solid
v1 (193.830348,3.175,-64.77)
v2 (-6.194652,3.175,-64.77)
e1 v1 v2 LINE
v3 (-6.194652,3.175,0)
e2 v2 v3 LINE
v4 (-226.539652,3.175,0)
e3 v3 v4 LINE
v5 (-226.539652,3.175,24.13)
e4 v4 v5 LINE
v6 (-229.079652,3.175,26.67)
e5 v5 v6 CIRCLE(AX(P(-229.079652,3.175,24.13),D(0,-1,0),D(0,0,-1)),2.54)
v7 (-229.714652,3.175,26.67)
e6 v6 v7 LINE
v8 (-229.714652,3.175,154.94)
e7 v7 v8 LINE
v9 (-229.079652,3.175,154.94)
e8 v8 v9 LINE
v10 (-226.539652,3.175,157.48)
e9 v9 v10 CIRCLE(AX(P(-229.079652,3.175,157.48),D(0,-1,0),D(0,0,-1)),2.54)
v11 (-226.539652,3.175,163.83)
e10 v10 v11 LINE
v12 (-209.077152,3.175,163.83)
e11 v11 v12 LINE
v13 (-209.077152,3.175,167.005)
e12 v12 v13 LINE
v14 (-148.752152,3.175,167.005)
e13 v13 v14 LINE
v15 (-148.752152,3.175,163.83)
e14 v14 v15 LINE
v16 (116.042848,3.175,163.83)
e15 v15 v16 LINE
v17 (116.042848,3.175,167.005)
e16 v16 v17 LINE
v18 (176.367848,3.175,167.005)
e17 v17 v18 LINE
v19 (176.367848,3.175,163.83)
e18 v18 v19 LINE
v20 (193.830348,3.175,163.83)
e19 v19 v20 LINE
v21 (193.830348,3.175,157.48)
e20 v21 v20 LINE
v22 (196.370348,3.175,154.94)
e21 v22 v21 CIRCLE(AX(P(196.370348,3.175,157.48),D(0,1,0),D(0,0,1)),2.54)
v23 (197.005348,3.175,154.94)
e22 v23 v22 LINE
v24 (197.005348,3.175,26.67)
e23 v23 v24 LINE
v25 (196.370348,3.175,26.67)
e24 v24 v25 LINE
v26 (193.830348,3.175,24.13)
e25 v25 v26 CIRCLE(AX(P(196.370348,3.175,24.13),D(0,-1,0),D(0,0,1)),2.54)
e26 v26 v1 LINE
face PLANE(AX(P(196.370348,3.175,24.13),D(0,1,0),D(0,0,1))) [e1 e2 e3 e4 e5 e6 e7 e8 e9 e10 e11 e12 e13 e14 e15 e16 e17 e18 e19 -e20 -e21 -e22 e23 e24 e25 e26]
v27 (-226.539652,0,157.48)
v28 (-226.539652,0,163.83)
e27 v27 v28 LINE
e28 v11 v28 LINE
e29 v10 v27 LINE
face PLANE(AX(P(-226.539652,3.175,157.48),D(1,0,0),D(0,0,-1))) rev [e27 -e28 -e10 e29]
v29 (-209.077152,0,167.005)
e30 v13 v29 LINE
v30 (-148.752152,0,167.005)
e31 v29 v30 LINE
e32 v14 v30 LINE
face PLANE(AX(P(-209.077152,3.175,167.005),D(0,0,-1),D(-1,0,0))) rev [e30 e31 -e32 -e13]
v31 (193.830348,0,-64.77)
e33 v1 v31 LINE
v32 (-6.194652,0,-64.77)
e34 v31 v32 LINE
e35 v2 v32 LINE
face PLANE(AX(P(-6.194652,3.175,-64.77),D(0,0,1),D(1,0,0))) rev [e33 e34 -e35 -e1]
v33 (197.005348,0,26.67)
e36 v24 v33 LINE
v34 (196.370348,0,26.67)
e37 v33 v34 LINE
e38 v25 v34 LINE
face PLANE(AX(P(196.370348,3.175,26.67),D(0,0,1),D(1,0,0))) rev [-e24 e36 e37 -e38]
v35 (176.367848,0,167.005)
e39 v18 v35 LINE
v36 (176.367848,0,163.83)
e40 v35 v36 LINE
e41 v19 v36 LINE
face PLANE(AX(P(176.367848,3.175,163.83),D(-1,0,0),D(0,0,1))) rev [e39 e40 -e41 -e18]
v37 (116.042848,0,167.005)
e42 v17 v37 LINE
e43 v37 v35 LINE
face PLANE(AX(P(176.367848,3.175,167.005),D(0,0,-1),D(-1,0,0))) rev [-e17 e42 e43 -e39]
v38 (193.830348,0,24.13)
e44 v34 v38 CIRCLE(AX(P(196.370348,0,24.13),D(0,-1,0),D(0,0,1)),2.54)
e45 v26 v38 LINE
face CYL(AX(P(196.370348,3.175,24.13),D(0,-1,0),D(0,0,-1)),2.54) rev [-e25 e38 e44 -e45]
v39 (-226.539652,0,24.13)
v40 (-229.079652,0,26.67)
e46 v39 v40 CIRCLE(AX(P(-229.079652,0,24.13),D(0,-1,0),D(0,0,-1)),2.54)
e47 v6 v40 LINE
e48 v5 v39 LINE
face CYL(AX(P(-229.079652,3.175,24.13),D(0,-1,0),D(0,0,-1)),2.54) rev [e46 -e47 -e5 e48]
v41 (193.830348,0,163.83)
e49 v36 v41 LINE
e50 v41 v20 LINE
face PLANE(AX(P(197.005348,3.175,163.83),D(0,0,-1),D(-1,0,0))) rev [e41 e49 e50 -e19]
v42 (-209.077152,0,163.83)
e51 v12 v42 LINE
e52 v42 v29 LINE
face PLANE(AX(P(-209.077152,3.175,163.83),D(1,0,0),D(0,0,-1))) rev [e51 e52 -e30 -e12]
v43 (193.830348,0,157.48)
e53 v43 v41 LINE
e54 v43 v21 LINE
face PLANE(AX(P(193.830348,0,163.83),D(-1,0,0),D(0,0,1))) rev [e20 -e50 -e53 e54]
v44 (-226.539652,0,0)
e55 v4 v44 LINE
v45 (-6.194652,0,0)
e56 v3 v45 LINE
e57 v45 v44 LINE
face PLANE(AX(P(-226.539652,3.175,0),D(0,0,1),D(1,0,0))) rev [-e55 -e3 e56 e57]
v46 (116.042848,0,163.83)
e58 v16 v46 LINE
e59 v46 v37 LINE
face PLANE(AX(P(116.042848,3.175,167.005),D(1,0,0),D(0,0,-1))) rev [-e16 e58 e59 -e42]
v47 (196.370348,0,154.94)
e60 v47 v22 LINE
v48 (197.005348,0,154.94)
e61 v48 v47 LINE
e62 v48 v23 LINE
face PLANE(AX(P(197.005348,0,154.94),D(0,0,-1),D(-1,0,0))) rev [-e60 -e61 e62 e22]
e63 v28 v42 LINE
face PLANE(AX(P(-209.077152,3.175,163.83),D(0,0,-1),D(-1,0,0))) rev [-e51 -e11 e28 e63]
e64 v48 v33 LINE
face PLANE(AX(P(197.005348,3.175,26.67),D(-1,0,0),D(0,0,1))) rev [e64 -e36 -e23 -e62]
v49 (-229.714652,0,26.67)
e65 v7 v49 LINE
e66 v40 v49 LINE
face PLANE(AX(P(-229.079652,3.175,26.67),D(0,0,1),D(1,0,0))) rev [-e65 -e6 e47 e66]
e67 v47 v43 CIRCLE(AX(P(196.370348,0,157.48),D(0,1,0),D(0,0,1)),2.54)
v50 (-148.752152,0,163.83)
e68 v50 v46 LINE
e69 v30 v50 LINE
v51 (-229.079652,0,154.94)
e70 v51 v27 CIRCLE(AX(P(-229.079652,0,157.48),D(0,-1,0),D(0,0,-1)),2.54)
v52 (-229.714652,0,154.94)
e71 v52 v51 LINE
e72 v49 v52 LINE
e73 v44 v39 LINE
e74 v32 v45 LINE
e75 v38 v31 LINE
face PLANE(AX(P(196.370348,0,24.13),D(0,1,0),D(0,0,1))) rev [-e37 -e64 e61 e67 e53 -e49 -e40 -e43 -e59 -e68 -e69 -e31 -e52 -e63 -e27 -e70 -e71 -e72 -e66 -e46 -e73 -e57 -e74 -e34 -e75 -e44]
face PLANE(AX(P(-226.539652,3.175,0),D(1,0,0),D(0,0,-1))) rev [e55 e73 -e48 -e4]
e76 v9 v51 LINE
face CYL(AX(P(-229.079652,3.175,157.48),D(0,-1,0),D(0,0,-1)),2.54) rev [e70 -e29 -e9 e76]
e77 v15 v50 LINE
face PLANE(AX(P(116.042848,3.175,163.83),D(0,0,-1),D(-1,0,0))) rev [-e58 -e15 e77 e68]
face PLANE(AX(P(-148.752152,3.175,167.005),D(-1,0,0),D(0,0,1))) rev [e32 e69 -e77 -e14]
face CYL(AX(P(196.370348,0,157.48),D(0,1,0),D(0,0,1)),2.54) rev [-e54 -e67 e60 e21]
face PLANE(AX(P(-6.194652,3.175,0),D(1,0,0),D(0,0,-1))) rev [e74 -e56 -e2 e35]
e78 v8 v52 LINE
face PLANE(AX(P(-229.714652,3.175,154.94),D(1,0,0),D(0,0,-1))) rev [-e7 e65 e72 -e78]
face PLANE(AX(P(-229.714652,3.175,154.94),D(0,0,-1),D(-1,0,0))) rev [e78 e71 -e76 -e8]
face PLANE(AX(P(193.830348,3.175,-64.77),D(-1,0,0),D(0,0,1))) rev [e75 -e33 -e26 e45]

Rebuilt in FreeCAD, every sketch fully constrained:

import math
import FreeCAD as App
import Part
import Sketcher
Q = App.Units.Quantity

doc = App.newDocument("Part")
body = doc.addObject("PartDesign::Body", "Body")

# Sketch on XZ plane
sketch1 = body.newObject("Sketcher::SketchObject", "Sketch")
sketch1.AttachmentSupport = (doc.getObject("XZ_Plane"), [""])
sketch1.MapMode = "FlatFace"
sketch1.addGeometry([
    Part.LineSegment(App.Vector(197.005348, 163.83, 0), App.Vector(197.005348, 26.67, 0)),  # 0
    Part.LineSegment(App.Vector(197.005348, 26.67, 0), App.Vector(196.370348, 26.67, 0)),  # 1
    Part.ArcOfCircle(Part.Circle(App.Vector(196.370348, 24.13, 0), App.Vector(0, 0, 1), 2.54), math.radians(90), math.radians(180)),  # 2
    Part.LineSegment(App.Vector(193.830348, 24.13, 0), App.Vector(193.830348, -64.77, 0)),  # 3
    Part.LineSegment(App.Vector(193.830348, -64.77, 0), App.Vector(-6.194652, -64.77, 0)),  # 4
    Part.LineSegment(App.Vector(-6.194652, -64.77, 0), App.Vector(-6.194652, 0, 0)),  # 5
    Part.LineSegment(App.Vector(-6.194652, 0, 0), App.Vector(-226.539652, 0, 0)),  # 6
    Part.LineSegment(App.Vector(-226.539652, 0, 0), App.Vector(-226.539652, 24.13, 0)),  # 7
    Part.ArcOfCircle(Part.Circle(App.Vector(-229.079652, 24.13, 0), App.Vector(0, 0, 1), 2.54), math.radians(0), math.radians(90)),  # 8
    Part.LineSegment(App.Vector(-229.079652, 26.67, 0), App.Vector(-229.714652, 26.67, 0)),  # 9
    Part.LineSegment(App.Vector(-229.714652, 26.67, 0), App.Vector(-229.714652, 154.94, 0)),  # 10
    Part.LineSegment(App.Vector(-229.714652, 154.94, 0), App.Vector(-229.079652, 154.94, 0)),  # 11
    Part.ArcOfCircle(Part.Circle(App.Vector(-229.079652, 157.48, 0), App.Vector(0, 0, 1), 2.54), math.radians(-90), math.radians(0)),  # 12
    Part.LineSegment(App.Vector(-226.539652, 157.48, 0), App.Vector(-226.539652, 163.83, 0)),  # 13
    Part.LineSegment(App.Vector(-226.539652, 163.83, 0), App.Vector(-209.077152, 163.83, 0)),  # 14
    Part.LineSegment(App.Vector(-209.077152, 163.83, 0), App.Vector(-209.077152, 167.005, 0)),  # 15
    Part.LineSegment(App.Vector(-209.077152, 167.005, 0), App.Vector(-148.752152, 167.005, 0)),  # 16
    Part.LineSegment(App.Vector(-148.752152, 167.005, 0), App.Vector(-148.752152, 163.83, 0)),  # 17
    Part.LineSegment(App.Vector(-148.752152, 163.83, 0), App.Vector(116.042848, 163.83, 0)),  # 18
    Part.LineSegment(App.Vector(116.042848, 163.83, 0), App.Vector(116.042848, 167.005, 0)),  # 19
    Part.LineSegment(App.Vector(116.042848, 167.005, 0), App.Vector(176.367848, 167.005, 0)),  # 20
    Part.LineSegment(App.Vector(176.367848, 167.005, 0), App.Vector(176.367848, 163.83, 0)),  # 21
    Part.LineSegment(App.Vector(176.367848, 163.83, 0), App.Vector(197.005348, 163.83, 0)),  # 22
], False)
sketch1.addConstraint([
    Sketcher.Constraint("Coincident", 0, 2, 1, 1),
    Sketcher.Constraint("Tangent", 1, 2, 2, 1),
    Sketcher.Constraint("Tangent", 2, 2, 3, 1),
    Sketcher.Constraint("Coincident", 3, 2, 4, 1),
    Sketcher.Constraint("Coincident", 4, 2, 5, 1),
    Sketcher.Constraint("Coincident", 5, 2, 6, 1),
    Sketcher.Constraint("Coincident", 6, 2, 7, 1),
    Sketcher.Constraint("Tangent", 7, 2, 8, 1),
    Sketcher.Constraint("Tangent", 8, 2, 9, 1),
    Sketcher.Constraint("Coincident", 9, 2, 10, 1),
    Sketcher.Constraint("Coincident", 10, 2, 11, 1),
    Sketcher.Constraint("Tangent", 11, 2, 12, 1),
    Sketcher.Constraint("Tangent", 12, 2, 13, 1),
    Sketcher.Constraint("Coincident", 13, 2, 14, 1),
    Sketcher.Constraint("Coincident", 14, 2, 15, 1),
    Sketcher.Constraint("Coincident", 15, 2, 16, 1),
    Sketcher.Constraint("Coincident", 16, 2, 17, 1),
    Sketcher.Constraint("Coincident", 17, 2, 18, 1),
    Sketcher.Constraint("Coincident", 18, 2, 19, 1),
    Sketcher.Constraint("Coincident", 19, 2, 20, 1),
    Sketcher.Constraint("Coincident", 20, 2, 21, 1),
    Sketcher.Constraint("Coincident", 21, 2, 22, 1),
    Sketcher.Constraint("Coincident", 22, 2, 0, 1),
    Sketcher.Constraint("Vertical", 0),
    Sketcher.Constraint("Horizontal", 1),
    Sketcher.Constraint("Vertical", 3),
    Sketcher.Constraint("Horizontal", 4),
    Sketcher.Constraint("Vertical", 5),
    Sketcher.Constraint("Horizontal", 6),
    Sketcher.Constraint("Vertical", 7),
    Sketcher.Constraint("Horizontal", 9),
    Sketcher.Constraint("Vertical", 10),
    Sketcher.Constraint("Horizontal", 11),
    Sketcher.Constraint("Vertical", 13),
    Sketcher.Constraint("Horizontal", 14),
    Sketcher.Constraint("Vertical", 15),
    Sketcher.Constraint("Horizontal", 16),
    Sketcher.Constraint("Vertical", 17),
    Sketcher.Constraint("Horizontal", 18),
    Sketcher.Constraint("Vertical", 19),
    Sketcher.Constraint("Horizontal", 20),
    Sketcher.Constraint("Vertical", 21),
    Sketcher.Constraint("Horizontal", 22),
    Sketcher.Constraint("Equal", 2, 8),
    Sketcher.Constraint("Equal", 8, 12),
    Sketcher.Constraint("PointOnObject", 5, 2, -1),
    Sketcher.Constraint("Horizontal", 2, 3, 8, 3),
    Sketcher.Constraint("Horizontal", 14, 2, 17, 2),
    Sketcher.Constraint("Horizontal", 16, 2, 19, 2),
    Sketcher.Constraint("Horizontal", 18, 2, 21, 2),
    Sketcher.Constraint("Vertical", 8, 3, 12, 3),
    Sketcher.Constraint("Equal", 1, 9),
    Sketcher.Constraint("Equal", 16, 20),
    Sketcher.Constraint("Radius", 2, Q("0.1 in")),
    Sketcher.Constraint("DistanceY", 0, 2, 0, 1, Q("5.4 in")),
    Sketcher.Constraint("DistanceY", 3, 2, 3, 1, Q("3.5 in")),
    Sketcher.Constraint("DistanceX", 4, 2, 0, 2, Q("8 in")),
    Sketcher.Constraint("DistanceY", 5, 1, 5, 2, Q("2.55 in")),
    Sketcher.Constraint("DistanceY", 10, 1, 10, 2, Q("5.05 in")),
    Sketcher.Constraint("DistanceX", 1, 2, 1, 1, Q("0.025 in")),
    Sketcher.Constraint("DistanceX", 6, 2, 6, 1, Q("8.675 in")),
    Sketcher.Constraint("DistanceX", 14, 1, 14, 2, Q("0.6875 in")),
    Sketcher.Constraint("DistanceX", 16, 1, 16, 2, Q("2.375 in")),
    Sketcher.Constraint("DistanceX", 18, 1, 18, 2, Q("10.425 in")),
    Sketcher.Constraint("DistanceY", 15, 1, 15, 2, Q("0.125 in")),
    Sketcher.Constraint("DistanceX", -1, 1, 2, 3, 196.370348),
])
pad1 = body.newObject("PartDesign::Pad", "Pad")
pad1.Profile = sketch1
pad1.Length = Q("0.125 in")
pad1.Reversed = True

# Sketch on XZ plane
sketch2 = body.newObject("Sketcher::SketchObject", "Sketch001")
sketch2.AttachmentSupport = (doc.getObject("XZ_Plane"), [""])
sketch2.MapMode = "FlatFace"
sketch2.AttachmentOffset = App.Placement(App.Vector(0, 0, -0.125 * 25.4), App.Rotation())
sketch2.addGeometry([
    Part.LineSegment(App.Vector(193.830348, 163.83, 0), App.Vector(197.005348, 163.83, 0)),  # 0
    Part.LineSegment(App.Vector(197.005348, 163.83, 0), App.Vector(197.005348, 154.94, 0)),  # 1
    Part.LineSegment(App.Vector(197.005348, 154.94, 0), App.Vector(196.370348, 154.94, 0)),  # 2
    Part.ArcOfCircle(Part.Circle(App.Vector(196.370348, 157.48, 0), App.Vector(0, 0, 1), 2.54), math.radians(-180), math.radians(-90)),  # 3
    Part.LineSegment(App.Vector(193.830348, 157.48, 0), App.Vector(193.830348, 163.83, 0)),  # 4
], False)
sketch2.addConstraint([
    Sketcher.Constraint("Coincident", 0, 2, 1, 1),
    Sketcher.Constraint("Coincident", 1, 2, 2, 1),
    Sketcher.Constraint("Tangent", 2, 2, 3, 2),
    Sketcher.Constraint("Tangent", 3, 1, 4, 1),
    Sketcher.Constraint("Coincident", 4, 2, 0, 1),
    Sketcher.Constraint("Horizontal", 0),
    Sketcher.Constraint("Vertical", 1),
    Sketcher.Constraint("Horizontal", 2),
    Sketcher.Constraint("Vertical", 4),
    Sketcher.Constraint("Radius", 3, Q("0.1 in")),
    Sketcher.Constraint("DistanceY", 1, 2, 1, 1, Q("0.35 in")),
    Sketcher.Constraint("DistanceY", -1, 1, 3, 3, Q("6.2 in")),
    Sketcher.Constraint("DistanceX", 0, 1, 0, 2, Q("0.125 in")),
    Sketcher.Constraint("DistanceX", -1, 1, 3, 3, 196.370348),
])
pocket1 = body.newObject("PartDesign::Pocket", "Pocket")
pocket1.Profile = sketch2
pocket1.Type = "ThroughAll"
pocket1.Midplane = True

doc.recompute()
